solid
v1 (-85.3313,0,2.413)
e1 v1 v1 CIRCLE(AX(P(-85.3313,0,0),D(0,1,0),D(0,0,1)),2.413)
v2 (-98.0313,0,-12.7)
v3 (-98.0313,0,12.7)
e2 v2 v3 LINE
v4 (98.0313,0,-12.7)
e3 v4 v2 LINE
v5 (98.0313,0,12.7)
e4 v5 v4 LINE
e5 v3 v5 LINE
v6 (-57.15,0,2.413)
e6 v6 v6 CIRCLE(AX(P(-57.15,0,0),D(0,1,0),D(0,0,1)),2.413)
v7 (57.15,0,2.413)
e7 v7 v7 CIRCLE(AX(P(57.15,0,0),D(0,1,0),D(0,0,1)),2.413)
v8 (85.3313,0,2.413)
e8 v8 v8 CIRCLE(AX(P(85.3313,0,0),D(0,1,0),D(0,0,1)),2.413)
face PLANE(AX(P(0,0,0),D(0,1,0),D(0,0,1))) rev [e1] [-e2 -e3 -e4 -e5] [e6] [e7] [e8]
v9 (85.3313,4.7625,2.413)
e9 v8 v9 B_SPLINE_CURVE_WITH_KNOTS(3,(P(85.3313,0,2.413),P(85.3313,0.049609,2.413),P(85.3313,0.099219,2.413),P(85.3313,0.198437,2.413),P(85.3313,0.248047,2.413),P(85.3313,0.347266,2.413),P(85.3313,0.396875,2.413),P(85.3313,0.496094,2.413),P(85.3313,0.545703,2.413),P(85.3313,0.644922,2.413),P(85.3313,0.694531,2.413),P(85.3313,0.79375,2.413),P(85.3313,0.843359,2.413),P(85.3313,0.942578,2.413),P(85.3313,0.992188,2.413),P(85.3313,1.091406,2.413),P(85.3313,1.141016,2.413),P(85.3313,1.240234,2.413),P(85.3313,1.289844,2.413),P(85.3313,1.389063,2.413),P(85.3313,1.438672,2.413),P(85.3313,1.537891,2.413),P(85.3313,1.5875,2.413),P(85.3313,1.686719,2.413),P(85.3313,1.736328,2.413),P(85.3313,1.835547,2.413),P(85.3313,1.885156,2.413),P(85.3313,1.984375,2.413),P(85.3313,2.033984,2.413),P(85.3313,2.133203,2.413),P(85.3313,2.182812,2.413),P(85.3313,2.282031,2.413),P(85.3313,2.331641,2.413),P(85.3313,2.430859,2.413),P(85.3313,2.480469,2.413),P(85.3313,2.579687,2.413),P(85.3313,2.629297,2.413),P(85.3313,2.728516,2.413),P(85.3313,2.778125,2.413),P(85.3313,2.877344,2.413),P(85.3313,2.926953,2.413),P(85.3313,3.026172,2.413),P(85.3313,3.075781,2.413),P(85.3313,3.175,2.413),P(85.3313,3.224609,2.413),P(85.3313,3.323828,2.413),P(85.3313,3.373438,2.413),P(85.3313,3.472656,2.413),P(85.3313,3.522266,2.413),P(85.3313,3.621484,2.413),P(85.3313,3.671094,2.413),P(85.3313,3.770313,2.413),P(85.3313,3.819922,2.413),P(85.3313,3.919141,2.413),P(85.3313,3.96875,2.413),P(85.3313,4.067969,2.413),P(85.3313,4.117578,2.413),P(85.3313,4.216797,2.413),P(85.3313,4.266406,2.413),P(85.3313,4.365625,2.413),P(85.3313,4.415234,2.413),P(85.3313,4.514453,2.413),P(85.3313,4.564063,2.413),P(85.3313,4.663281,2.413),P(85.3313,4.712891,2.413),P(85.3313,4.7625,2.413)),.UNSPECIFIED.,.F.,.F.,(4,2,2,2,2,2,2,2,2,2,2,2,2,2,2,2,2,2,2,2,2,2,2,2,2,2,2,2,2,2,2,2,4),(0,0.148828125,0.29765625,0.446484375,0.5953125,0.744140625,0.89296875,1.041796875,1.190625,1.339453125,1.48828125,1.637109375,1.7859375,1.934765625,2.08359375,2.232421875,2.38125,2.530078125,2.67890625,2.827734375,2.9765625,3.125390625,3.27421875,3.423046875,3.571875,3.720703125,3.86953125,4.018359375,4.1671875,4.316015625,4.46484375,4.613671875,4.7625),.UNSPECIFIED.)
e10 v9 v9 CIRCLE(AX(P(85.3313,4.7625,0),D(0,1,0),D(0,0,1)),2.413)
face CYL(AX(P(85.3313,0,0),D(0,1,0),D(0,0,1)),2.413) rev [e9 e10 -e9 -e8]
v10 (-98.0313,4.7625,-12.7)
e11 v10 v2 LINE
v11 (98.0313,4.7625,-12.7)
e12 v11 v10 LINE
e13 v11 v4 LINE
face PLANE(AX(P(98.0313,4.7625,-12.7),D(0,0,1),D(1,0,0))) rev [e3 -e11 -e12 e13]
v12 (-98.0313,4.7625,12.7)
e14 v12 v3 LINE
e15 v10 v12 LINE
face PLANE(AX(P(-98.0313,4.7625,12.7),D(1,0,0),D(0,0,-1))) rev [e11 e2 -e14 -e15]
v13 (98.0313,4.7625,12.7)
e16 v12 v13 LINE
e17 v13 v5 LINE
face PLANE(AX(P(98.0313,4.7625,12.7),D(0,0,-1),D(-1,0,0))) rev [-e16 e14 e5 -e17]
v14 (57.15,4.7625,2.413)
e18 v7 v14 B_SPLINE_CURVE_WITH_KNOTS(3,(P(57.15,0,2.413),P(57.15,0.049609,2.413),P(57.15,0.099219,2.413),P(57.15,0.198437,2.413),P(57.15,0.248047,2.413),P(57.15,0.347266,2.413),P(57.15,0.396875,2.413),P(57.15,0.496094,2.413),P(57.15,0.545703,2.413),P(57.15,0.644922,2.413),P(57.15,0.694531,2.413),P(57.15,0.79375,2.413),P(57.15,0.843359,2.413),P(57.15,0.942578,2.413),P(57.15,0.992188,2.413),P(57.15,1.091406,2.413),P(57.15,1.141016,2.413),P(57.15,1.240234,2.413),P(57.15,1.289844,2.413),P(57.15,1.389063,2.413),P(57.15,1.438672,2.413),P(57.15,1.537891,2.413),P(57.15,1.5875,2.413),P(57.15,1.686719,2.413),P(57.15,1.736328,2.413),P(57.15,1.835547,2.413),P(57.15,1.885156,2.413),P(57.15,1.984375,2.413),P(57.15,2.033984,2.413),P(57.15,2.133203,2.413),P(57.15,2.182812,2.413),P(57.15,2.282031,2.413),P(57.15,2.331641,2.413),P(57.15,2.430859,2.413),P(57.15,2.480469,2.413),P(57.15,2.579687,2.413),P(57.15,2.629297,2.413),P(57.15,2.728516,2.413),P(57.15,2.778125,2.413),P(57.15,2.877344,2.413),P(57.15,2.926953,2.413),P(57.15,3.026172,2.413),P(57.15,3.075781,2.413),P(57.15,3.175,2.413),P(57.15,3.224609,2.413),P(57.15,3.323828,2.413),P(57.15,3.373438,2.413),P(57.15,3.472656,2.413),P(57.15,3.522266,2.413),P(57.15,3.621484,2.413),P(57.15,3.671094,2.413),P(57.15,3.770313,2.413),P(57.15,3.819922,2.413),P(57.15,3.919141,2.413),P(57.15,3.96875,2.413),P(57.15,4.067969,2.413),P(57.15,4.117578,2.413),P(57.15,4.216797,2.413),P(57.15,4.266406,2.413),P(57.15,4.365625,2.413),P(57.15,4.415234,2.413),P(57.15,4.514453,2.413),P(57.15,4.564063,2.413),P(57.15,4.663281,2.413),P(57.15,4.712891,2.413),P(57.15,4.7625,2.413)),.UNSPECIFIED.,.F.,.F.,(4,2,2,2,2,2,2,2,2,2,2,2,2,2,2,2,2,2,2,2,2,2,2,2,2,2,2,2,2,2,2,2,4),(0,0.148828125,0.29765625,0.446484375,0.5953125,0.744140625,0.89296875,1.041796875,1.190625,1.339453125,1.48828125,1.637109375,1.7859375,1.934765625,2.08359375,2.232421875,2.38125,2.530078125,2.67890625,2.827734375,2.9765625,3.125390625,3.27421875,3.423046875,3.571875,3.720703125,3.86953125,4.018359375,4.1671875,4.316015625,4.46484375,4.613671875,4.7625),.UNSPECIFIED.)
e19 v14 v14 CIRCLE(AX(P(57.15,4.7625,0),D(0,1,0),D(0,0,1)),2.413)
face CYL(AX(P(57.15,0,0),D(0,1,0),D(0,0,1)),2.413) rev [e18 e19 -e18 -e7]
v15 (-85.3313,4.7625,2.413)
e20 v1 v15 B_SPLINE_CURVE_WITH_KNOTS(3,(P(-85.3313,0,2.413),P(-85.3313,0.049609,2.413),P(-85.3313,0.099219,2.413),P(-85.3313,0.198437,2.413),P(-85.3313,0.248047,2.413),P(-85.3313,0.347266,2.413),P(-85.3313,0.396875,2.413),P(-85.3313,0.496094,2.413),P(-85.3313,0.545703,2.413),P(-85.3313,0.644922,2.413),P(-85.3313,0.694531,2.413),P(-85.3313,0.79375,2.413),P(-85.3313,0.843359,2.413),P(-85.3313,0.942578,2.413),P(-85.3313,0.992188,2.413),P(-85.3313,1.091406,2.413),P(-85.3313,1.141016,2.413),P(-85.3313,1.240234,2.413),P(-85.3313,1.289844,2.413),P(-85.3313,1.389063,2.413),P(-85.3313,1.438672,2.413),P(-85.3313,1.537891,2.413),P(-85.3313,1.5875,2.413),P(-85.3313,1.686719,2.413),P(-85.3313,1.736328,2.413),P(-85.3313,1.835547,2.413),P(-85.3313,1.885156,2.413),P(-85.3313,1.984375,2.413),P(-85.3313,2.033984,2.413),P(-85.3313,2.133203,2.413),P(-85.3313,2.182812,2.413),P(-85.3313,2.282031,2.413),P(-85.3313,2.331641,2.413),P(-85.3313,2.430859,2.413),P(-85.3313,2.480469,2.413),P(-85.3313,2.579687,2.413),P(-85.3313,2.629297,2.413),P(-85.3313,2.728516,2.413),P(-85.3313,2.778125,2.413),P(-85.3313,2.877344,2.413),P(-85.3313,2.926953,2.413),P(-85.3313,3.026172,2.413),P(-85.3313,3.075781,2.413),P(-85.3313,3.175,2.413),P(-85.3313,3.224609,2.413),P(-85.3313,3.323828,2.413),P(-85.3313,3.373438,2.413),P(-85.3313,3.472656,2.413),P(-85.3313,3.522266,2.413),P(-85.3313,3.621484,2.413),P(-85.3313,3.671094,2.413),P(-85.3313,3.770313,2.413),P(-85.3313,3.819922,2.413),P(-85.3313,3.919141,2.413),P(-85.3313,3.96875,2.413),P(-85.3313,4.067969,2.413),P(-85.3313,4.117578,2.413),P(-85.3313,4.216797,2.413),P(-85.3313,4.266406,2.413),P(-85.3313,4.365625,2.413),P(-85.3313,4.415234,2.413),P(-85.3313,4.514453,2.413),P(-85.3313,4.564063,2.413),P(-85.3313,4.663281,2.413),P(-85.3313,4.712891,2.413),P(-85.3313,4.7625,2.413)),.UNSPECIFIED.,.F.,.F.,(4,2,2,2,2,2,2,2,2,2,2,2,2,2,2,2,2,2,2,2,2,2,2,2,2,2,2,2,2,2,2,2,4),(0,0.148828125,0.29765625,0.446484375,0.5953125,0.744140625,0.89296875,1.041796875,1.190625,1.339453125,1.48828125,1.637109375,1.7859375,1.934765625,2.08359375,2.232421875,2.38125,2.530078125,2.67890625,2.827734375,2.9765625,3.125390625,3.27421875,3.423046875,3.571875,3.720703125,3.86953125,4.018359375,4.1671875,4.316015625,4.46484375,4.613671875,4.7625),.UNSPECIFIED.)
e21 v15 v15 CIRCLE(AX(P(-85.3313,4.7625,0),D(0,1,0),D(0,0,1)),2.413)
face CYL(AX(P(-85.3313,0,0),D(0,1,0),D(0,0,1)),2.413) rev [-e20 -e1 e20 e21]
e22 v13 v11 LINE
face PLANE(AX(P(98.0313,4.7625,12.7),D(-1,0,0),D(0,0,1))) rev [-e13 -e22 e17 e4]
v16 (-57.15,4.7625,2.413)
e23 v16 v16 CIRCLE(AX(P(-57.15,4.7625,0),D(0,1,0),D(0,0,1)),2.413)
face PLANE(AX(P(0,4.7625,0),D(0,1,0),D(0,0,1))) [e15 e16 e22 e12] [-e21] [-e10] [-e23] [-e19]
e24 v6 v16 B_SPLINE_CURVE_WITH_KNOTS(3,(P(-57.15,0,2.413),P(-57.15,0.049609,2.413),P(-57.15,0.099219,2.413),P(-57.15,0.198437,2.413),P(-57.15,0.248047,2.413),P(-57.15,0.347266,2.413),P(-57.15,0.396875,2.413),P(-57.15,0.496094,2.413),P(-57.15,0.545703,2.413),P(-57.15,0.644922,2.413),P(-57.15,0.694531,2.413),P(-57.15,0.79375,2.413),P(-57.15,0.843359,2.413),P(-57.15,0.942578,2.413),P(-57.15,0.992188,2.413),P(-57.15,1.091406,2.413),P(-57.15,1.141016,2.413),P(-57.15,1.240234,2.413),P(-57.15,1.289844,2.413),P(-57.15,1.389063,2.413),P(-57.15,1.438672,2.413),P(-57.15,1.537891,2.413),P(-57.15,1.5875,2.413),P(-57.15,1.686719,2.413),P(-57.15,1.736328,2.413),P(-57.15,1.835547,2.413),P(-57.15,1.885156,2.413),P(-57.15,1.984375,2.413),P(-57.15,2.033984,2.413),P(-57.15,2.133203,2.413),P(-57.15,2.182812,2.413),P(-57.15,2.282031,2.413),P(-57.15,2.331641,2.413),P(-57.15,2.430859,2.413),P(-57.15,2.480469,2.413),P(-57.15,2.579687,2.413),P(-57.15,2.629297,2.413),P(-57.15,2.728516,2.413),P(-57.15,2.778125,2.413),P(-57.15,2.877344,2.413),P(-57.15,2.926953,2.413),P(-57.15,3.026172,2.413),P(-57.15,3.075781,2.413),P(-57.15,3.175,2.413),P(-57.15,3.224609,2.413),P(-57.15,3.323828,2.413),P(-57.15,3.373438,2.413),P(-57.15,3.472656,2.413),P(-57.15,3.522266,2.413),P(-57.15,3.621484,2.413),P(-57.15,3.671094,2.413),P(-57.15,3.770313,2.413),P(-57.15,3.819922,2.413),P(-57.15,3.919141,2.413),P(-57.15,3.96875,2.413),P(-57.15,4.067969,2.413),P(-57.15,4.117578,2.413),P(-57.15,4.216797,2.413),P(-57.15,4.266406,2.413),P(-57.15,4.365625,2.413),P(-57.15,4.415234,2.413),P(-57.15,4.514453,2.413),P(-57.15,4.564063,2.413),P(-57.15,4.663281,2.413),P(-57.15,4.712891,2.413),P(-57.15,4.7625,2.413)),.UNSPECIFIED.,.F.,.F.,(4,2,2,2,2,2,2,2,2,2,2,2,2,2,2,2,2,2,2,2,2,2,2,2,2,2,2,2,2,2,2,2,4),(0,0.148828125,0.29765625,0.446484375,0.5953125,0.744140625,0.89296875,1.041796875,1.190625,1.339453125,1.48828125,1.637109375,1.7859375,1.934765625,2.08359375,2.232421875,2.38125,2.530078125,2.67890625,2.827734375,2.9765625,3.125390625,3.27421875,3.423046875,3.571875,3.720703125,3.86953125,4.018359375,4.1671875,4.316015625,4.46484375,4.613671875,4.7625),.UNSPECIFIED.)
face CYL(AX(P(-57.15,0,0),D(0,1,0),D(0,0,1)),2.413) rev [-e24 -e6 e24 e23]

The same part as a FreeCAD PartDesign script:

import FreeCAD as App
import Part
import Sketcher
Q = App.Units.Quantity

doc = App.newDocument("Part")
body = doc.addObject("PartDesign::Body", "Body")

# Sketch on XZ plane
sketch1 = doc.addObject("Sketcher::SketchObject", "Sketch")
body.addObject(sketch1)
sketch1.AttachmentSupport = (doc.XZ_Plane, [""])
sketch1.MapMode = "FlatFace"
sketch1.addGeometry(Part.LineSegment(App.Vector(-98, -13, 0), App.Vector(-98, 13, 0)), False)
sketch1.addGeometry(Part.LineSegment(App.Vector(-98, 13, 0), App.Vector(98, 13, 0)), False)
sketch1.addGeometry(Part.LineSegment(App.Vector(98, 13, 0), App.Vector(98, -13, 0)), False)
sketch1.addGeometry(Part.LineSegment(App.Vector(98, -13, 0), App.Vector(-98, -13, 0)), False)
sketch1.addConstraint(Sketcher.Constraint("Coincident", 0, 2, 1, 1))
sketch1.addConstraint(Sketcher.Constraint("Coincident", 1, 2, 2, 1))
sketch1.addConstraint(Sketcher.Constraint("Coincident", 2, 2, 3, 1))
sketch1.addConstraint(Sketcher.Constraint("Coincident", 3, 2, 0, 1))
sketch1.addConstraint(Sketcher.Constraint("Vertical", 0))
sketch1.addConstraint(Sketcher.Constraint("Horizontal", 1))
sketch1.addConstraint(Sketcher.Constraint("Vertical", 2))
sketch1.addConstraint(Sketcher.Constraint("Horizontal", 3))
sketch1.addConstraint(Sketcher.Constraint("Symmetric", 0, 2, 2, 2, -1, 1))
sketch1.addConstraint(Sketcher.Constraint("DistanceY", 0, 1, 0, 2, Q("1 in")))
sketch1.addConstraint(Sketcher.Constraint("DistanceX", 1, 1, 1, 2, Q("7.719 in")))
pad1 = doc.addObject("PartDesign::Pad", "Pad")
body.addObject(pad1)
pad1.Profile = sketch1
pad1.Length = Q("0.1875 in")
pad1.Reversed = True

# Sketch on XZ plane
sketch2 = doc.addObject("Sketcher::SketchObject", "Sketch001")
body.addObject(sketch2)
sketch2.AttachmentSupport = (doc.XZ_Plane, [""])
sketch2.MapMode = "FlatFace"
sketch2.AttachmentOffset = App.Placement(App.Vector(0, 0, -0.1875 * 25.4), App.Rotation())
sketch2.addGeometry(Part.Circle(App.Vector(-57.1, 0, 0), App.Vector(0, 0, 1), 2.4), False)
sketch2.addGeometry(Part.Circle(App.Vector(57.1, 0, 0), App.Vector(0, 0, 1), 2.4), False)
sketch2.addGeometry(Part.Circle(App.Vector(-85.3, 0, 0), App.Vector(0, 0, 1), 2.4), False)
sketch2.addGeometry(Part.Circle(App.Vector(85.3, 0, 0), App.Vector(0, 0, 1), 2.4), False)
sketch2.addConstraint(Sketcher.Constraint("Equal", 0, 1))
sketch2.addConstraint(Sketcher.Constraint("Equal", 1, 2))
sketch2.addConstraint(Sketcher.Constraint("Equal", 2, 3))
sketch2.addConstraint(Sketcher.Constraint("Symmetric", 0, 3, 1, 3, -1, 1))
sketch2.addConstraint(Sketcher.Constraint("Symmetric", 2, 3, 3, 3, -1, 1))
sketch2.addConstraint(Sketcher.Constraint("PointOnObject", 0, 3, -1))
sketch2.addConstraint(Sketcher.Constraint("PointOnObject", 2, 3, -1))
sketch2.addConstraint(Sketcher.Constraint("Diameter", 0, Q("0.19 in")))
sketch2.addConstraint(Sketcher.Constraint("DistanceX", 0, 3, 1, 3, Q("4.5 in")))
sketch2.addConstraint(Sketcher.Constraint("DistanceX", 2, 3, 3, 3, Q("6.719 in")))
pocket1 = doc.addObject("PartDesign::Pocket", "Pocket")
body.addObject(pocket1)
pocket1.Profile = sketch2
pocket1.Type = "ThroughAll"
pocket1.Reversed = True

doc.recompute()
